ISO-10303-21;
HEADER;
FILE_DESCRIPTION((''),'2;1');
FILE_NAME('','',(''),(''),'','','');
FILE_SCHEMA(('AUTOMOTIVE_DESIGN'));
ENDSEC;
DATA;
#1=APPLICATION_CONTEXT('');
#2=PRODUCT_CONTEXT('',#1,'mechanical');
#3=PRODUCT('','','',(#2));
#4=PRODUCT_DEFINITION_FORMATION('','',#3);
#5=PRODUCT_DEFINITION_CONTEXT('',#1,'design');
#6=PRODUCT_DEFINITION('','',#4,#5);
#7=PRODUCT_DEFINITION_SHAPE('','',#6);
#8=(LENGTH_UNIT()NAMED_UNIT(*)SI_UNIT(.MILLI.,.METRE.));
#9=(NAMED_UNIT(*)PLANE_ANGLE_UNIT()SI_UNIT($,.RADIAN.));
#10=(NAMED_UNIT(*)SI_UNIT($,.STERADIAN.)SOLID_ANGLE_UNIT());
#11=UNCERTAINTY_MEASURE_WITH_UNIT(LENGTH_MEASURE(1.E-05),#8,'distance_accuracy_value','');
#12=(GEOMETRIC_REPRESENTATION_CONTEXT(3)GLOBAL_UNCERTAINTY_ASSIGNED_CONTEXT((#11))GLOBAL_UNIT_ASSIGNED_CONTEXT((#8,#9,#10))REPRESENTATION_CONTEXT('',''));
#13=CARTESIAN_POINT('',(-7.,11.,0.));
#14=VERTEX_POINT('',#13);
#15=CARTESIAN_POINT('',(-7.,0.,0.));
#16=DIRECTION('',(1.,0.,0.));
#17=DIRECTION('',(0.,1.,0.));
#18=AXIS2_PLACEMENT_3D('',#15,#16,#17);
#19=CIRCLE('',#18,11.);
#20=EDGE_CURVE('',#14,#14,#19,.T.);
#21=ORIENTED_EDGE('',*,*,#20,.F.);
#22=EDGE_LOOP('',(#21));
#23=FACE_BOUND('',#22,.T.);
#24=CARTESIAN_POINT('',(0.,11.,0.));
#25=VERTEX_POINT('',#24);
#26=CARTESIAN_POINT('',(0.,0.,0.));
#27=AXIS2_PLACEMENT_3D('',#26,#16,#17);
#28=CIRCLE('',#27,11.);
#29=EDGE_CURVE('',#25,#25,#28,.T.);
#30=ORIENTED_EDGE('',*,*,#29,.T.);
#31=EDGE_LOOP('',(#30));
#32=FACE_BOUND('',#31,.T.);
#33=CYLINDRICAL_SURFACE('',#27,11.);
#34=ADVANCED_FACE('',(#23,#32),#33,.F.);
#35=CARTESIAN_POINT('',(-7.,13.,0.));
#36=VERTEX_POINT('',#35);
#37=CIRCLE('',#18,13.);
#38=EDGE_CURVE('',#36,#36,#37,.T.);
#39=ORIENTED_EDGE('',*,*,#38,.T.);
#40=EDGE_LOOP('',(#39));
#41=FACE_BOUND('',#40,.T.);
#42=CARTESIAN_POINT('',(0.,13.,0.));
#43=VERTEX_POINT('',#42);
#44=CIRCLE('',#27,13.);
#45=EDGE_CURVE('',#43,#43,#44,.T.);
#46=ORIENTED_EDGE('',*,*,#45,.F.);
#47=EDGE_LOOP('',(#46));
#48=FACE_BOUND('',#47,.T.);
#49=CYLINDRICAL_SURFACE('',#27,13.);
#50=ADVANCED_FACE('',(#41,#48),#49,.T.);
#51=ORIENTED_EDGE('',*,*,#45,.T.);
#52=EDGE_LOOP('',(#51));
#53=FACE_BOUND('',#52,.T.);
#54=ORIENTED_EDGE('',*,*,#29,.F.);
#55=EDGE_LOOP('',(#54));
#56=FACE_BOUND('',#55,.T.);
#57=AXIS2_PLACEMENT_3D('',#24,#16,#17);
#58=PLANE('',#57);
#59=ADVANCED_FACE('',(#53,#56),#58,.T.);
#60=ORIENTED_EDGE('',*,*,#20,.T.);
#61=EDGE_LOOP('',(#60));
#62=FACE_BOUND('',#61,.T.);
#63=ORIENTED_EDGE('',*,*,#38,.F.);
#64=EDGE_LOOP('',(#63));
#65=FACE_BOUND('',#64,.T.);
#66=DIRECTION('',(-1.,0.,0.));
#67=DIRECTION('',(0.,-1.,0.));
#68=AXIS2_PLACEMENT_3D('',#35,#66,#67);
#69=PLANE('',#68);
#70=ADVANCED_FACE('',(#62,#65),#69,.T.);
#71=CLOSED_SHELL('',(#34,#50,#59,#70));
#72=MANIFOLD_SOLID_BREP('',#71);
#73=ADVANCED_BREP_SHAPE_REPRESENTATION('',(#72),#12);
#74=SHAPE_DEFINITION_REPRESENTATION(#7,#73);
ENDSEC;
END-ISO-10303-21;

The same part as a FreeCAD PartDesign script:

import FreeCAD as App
import Part
import Sketcher
from FreeCAD import Vector
Q = App.Units.Quantity


def add_polygon(sketch, points):
    """Adds a closed chain of lines whose ends are joined by coincident constraints."""
    first, n = sketch.GeometryCount, len(points)
    for a, b in zip(points, points[1:] + points[:1]):
        sketch.addGeometry(Part.LineSegment(App.Vector(*a, 0), App.Vector(*b, 0)), False)
    for i in range(n):
        sketch.addConstraint(Sketcher.Constraint("Coincident", first + i, 2, first + (i + 1) % n, 1))

doc = App.newDocument("Part")
body = doc.addObject("PartDesign::Body", "Body")

# Sketch on XY plane
sketch1 = body.newObject("Sketcher::SketchObject", "Sketch")
sketch1.AttachmentSupport = (doc.getObject("XY_Plane"), [""])
sketch1.MapMode = "FlatFace"
add_polygon(sketch1, [(-7, 13), (-7, 11), (0, 11), (0, 13)])  # lines 0-3
sketch1.addConstraint([
    Sketcher.Constraint("Vertical", 0),
    Sketcher.Constraint("Horizontal", 1),
    Sketcher.Constraint("Vertical", 2),
    Sketcher.Constraint("Horizontal", 3),
    Sketcher.Constraint("PointOnObject", 1, 2, -2),
    Sketcher.Constraint("DistanceX", 1, 1, 1, 2, Q("7 mm")),
    Sketcher.Constraint("DistanceY", 0, 2, 0, 1, Q("2 mm")),
    Sketcher.Constraint("DistanceY", -1, 1, 0, 2, Q("11 mm")),
])
revolution = body.newObject("PartDesign::Revolution", "Revolution")
revolution.Profile = sketch1
revolution.ReferenceAxis = (sketch1, ["H_Axis"])
revolution.Angle = 360

doc.recompute()
